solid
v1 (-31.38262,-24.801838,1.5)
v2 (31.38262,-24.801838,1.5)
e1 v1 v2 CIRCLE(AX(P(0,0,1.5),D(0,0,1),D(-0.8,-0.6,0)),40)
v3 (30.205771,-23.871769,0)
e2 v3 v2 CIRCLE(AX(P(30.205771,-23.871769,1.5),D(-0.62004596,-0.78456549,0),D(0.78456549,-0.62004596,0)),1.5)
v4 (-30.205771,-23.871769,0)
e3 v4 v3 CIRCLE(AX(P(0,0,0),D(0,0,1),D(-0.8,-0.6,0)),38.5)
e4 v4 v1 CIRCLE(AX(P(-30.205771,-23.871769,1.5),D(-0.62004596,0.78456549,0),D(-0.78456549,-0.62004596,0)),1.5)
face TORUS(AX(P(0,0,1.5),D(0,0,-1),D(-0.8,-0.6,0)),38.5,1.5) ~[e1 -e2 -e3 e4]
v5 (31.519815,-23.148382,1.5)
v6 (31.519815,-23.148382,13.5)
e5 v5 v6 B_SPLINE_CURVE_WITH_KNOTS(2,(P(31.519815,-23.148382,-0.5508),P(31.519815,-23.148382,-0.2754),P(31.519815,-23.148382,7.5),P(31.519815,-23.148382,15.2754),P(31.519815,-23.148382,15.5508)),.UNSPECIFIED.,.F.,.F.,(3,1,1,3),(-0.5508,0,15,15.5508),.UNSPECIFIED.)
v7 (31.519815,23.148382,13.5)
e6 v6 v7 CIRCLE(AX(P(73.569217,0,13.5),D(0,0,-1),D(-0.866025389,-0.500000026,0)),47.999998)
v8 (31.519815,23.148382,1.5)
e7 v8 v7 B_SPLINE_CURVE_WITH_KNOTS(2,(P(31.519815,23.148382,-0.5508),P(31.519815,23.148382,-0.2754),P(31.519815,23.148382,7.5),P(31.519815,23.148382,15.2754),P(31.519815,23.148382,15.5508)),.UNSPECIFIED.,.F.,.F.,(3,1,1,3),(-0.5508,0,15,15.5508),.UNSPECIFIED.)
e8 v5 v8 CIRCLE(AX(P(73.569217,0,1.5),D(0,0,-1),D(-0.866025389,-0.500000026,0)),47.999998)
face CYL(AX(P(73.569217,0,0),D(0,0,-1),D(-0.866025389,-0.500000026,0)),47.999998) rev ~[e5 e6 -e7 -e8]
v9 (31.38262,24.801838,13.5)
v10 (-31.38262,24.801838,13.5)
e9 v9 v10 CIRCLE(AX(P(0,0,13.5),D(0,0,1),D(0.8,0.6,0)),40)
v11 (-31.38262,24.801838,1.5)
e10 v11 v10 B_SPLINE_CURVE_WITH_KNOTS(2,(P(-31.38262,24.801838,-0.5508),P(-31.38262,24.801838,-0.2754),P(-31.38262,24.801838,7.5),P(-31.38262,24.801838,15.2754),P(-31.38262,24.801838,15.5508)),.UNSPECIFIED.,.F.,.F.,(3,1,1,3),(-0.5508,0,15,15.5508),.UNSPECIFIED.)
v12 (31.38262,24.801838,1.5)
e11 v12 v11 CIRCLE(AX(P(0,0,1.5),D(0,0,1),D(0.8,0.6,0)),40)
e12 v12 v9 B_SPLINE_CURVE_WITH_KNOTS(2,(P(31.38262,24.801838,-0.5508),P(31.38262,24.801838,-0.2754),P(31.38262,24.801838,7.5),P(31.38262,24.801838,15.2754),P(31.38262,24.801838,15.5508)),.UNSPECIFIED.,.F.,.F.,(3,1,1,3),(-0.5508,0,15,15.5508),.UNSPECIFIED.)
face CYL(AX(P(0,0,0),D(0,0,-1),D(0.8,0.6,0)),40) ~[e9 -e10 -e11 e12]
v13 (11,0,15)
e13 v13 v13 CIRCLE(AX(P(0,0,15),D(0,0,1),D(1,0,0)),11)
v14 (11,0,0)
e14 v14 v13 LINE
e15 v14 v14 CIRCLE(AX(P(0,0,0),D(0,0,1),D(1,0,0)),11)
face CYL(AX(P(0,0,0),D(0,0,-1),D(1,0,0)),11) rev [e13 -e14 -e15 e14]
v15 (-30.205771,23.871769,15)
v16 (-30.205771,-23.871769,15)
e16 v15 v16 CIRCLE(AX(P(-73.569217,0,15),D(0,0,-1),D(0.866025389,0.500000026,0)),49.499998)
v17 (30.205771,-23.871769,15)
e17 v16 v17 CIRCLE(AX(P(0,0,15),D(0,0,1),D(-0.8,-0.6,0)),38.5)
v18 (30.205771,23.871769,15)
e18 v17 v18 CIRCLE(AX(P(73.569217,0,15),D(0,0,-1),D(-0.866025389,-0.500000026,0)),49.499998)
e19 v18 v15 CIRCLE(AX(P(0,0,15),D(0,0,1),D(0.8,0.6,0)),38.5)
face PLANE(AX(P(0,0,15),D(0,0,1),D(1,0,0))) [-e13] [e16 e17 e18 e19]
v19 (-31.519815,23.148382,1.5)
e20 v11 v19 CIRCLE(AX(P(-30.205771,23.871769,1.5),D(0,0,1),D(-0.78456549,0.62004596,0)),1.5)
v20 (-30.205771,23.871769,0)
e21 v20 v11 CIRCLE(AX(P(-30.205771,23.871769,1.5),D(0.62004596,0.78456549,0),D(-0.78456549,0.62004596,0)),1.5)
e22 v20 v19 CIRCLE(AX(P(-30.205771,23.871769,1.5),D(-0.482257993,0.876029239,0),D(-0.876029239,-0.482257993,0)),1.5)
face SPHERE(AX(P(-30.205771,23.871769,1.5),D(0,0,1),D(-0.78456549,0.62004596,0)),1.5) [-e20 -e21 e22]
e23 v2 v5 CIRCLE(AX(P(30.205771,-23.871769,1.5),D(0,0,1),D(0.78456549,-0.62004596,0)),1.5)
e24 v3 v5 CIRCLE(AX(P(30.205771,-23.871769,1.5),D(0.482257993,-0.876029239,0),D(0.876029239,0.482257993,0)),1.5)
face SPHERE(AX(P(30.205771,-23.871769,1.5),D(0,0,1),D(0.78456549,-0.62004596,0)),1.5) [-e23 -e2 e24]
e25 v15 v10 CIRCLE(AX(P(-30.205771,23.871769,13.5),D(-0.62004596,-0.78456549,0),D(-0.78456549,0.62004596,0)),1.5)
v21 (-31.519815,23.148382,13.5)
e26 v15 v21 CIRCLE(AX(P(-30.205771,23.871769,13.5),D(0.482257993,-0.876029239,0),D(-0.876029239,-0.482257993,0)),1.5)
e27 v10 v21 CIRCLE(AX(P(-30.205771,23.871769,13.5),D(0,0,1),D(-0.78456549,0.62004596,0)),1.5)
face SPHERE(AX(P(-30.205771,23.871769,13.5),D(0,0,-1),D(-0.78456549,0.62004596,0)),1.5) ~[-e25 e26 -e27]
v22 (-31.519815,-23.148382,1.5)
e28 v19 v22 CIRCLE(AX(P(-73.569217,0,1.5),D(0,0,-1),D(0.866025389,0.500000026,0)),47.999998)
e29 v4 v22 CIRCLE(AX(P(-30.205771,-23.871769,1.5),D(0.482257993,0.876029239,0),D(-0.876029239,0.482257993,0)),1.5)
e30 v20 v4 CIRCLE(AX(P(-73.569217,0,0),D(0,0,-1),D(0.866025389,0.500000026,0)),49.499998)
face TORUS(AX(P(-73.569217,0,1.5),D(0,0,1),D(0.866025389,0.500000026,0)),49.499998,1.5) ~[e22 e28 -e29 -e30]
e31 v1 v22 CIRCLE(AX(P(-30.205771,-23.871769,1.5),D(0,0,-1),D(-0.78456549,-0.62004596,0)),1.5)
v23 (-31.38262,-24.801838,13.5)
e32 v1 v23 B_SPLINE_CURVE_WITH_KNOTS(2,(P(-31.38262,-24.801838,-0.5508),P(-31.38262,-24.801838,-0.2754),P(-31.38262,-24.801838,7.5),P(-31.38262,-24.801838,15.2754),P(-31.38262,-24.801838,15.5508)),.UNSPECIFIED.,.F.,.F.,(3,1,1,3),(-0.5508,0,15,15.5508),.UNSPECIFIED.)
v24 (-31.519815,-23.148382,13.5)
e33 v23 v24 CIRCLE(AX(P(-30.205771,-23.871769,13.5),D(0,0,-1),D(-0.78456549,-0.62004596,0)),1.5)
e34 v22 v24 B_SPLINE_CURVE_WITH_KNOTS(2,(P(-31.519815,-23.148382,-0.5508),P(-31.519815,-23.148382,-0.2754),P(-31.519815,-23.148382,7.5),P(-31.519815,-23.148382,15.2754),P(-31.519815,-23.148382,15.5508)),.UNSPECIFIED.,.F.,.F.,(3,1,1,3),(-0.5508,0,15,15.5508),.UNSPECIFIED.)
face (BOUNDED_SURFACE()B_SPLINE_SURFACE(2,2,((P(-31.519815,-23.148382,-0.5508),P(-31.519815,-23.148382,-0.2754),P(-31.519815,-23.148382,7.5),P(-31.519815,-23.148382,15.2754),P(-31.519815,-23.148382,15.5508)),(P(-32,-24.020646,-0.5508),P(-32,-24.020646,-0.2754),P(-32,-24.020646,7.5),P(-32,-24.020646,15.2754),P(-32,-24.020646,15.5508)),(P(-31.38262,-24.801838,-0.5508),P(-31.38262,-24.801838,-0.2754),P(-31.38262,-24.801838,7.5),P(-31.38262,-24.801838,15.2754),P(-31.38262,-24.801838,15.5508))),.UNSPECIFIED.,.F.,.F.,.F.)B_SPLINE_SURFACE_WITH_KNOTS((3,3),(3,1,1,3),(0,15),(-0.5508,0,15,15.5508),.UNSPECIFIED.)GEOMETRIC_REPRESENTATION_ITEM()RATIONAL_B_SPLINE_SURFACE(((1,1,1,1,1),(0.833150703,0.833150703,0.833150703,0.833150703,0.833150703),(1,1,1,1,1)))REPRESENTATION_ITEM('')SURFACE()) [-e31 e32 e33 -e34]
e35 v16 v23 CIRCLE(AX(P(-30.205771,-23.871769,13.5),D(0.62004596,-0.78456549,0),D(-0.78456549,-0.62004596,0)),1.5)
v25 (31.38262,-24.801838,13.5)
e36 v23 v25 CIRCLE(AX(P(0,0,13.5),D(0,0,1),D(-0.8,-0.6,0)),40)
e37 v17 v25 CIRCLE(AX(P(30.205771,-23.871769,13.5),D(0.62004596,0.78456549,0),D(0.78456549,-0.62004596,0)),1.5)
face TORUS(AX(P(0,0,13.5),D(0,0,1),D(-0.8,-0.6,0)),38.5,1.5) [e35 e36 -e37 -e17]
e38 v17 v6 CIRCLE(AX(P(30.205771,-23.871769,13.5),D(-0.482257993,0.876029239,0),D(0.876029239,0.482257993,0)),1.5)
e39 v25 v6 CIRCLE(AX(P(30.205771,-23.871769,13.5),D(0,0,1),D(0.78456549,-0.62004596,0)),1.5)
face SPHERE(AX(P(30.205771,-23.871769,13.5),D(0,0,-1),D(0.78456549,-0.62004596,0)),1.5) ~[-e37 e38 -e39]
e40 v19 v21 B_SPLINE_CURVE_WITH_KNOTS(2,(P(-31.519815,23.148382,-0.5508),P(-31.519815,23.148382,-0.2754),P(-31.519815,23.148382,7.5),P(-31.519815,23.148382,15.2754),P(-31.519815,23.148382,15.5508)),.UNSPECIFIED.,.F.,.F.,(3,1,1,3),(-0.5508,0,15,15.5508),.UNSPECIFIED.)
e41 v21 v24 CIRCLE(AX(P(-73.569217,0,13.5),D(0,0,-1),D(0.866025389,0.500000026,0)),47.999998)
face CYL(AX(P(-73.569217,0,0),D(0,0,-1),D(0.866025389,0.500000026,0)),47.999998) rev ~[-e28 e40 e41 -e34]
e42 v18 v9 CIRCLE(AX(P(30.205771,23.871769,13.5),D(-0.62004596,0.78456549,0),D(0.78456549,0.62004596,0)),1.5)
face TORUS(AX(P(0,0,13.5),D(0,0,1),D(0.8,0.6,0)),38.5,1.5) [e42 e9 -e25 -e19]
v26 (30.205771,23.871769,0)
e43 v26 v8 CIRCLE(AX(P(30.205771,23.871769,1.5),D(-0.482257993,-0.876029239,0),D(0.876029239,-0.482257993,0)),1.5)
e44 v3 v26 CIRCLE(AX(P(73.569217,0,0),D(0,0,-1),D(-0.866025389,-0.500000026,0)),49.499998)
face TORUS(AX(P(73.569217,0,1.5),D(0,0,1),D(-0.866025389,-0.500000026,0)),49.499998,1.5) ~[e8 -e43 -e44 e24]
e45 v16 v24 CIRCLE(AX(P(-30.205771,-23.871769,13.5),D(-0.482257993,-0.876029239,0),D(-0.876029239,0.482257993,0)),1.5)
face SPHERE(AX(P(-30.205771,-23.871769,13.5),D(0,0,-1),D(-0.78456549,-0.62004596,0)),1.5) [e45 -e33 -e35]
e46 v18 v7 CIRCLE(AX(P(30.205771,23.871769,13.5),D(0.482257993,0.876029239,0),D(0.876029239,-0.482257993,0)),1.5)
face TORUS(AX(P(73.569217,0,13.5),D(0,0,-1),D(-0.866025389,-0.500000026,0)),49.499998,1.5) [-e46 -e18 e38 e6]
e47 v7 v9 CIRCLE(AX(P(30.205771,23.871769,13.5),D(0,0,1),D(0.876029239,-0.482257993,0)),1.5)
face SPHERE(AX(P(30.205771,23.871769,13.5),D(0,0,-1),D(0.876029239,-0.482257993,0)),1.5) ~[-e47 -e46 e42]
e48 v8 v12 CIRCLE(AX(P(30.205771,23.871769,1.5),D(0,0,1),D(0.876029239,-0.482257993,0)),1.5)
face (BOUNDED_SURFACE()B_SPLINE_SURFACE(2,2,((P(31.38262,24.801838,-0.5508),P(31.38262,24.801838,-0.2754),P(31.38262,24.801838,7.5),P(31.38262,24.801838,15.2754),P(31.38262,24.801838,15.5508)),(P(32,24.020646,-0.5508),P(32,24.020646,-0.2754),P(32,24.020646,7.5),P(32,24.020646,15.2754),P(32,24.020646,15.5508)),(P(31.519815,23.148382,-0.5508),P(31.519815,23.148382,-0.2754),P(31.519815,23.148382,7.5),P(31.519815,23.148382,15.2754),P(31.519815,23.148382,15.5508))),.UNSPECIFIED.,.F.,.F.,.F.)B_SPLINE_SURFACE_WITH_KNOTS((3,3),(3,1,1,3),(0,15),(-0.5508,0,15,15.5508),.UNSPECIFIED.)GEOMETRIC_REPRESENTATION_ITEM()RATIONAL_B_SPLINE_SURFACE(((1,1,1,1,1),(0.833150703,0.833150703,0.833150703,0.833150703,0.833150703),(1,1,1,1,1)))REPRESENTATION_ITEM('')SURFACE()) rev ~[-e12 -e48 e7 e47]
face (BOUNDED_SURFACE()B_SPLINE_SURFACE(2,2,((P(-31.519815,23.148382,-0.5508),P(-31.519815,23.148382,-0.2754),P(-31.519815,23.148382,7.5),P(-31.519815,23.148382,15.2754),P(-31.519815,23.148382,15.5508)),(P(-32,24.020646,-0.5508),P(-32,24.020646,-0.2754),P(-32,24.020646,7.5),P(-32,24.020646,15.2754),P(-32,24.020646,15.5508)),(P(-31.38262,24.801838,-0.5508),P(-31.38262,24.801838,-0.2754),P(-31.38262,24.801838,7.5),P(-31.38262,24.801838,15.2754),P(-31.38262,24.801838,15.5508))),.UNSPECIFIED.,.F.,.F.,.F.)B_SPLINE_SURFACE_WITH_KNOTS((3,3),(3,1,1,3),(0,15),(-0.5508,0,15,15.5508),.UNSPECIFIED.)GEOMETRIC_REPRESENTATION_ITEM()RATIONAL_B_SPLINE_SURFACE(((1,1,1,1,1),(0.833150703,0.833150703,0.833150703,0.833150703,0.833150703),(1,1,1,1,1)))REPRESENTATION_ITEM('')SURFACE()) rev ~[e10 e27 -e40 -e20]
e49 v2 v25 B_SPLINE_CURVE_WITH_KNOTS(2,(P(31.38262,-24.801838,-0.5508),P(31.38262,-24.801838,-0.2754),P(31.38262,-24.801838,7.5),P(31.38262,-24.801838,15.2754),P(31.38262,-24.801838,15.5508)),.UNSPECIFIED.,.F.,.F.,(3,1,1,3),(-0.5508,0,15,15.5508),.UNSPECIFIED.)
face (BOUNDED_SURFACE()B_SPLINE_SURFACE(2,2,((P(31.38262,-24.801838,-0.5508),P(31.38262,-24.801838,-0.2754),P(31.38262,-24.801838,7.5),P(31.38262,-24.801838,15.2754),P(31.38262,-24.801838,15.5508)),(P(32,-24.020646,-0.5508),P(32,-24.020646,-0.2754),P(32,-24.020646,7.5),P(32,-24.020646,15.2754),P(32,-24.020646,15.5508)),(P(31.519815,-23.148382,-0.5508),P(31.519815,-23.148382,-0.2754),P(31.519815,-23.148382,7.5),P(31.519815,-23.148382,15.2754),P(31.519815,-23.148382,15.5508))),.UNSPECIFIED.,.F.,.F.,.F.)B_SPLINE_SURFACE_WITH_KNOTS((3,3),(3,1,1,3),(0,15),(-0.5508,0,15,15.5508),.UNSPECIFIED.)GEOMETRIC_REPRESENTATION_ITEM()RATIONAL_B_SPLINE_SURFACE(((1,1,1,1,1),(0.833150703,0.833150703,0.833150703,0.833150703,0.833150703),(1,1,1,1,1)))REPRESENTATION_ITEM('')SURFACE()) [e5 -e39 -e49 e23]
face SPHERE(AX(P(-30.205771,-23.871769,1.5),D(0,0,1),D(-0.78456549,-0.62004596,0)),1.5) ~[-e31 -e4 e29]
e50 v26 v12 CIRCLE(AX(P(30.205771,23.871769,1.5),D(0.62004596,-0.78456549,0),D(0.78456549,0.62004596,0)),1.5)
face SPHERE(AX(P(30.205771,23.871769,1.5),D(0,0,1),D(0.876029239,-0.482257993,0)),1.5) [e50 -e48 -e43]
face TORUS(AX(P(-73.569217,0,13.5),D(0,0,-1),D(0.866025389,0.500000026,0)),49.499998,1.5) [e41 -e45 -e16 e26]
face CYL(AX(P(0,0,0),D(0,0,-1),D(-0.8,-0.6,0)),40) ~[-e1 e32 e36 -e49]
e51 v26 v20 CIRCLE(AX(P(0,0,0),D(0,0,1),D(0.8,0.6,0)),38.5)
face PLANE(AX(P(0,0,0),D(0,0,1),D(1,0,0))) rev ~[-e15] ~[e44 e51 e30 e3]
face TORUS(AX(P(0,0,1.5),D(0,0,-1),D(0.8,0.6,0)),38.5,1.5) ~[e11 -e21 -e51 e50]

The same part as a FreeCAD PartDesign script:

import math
import FreeCAD as App
import Part
import Sketcher

V = App.Vector


def edges_at(feature, points):
    """Names of the edges that pass closest to the given points."""
    edges = feature.Shape.Edges
    near = lambda p: min(range(len(edges)), key=lambda i: edges[i].distToShape(Part.Vertex(*p))[0])
    return sorted({f"Edge{near(p) + 1}" for p in points})

doc = App.newDocument("Part")
body = doc.addObject("PartDesign::Body", "Body")

# Sketch on XY plane
sketch1 = body.newObject("Sketcher::SketchObject", "Sketch")
sketch1.AttachmentSupport = (doc.getObject("XY_Plane"), [""])
sketch1.MapMode = "FlatFace"
sketch1.addGeometry(Part.ArcOfCircle(Part.Circle(V(-74, 0, 0), V(0, 0, 1), 48), math.radians(-30), math.radians(30)), False)
sketch1.addGeometry(Part.ArcOfCircle(Part.Circle(V(0, 0, 0), V(0, 0, 1), 40), math.radians(-143), math.radians(-37)), False)
sketch1.addGeometry(Part.ArcOfCircle(Part.Circle(V(74, 0, 0), V(0, 0, 1), 48), math.radians(150), math.radians(210)), False)
sketch1.addGeometry(Part.ArcOfCircle(Part.Circle(V(0, 0, 0), V(0, 0, 1), 40), math.radians(37), math.radians(143)), False)
sketch1.addGeometry(Part.Circle(V(0, 0, 0), V(0, 0, 1), 11), False)
sketch1.addConstraint(Sketcher.Constraint("Coincident", 0, 1, 1, 1))
sketch1.addConstraint(Sketcher.Constraint("Coincident", 1, 2, 2, 2))
sketch1.addConstraint(Sketcher.Constraint("Coincident", 2, 1, 3, 1))
sketch1.addConstraint(Sketcher.Constraint("Coincident", 3, 2, 0, 2))
sketch1.addConstraint(Sketcher.Constraint("Coincident", 1, 3, -1, 1))
sketch1.addConstraint(Sketcher.Constraint("Coincident", 3, 3, -1, 1))
sketch1.addConstraint(Sketcher.Constraint("Coincident", 4, 3, -1, 1))
sketch1.addConstraint(Sketcher.Constraint("Equal", 0, 2))
sketch1.addConstraint(Sketcher.Constraint("Equal", 1, 3))
sketch1.addConstraint(Sketcher.Constraint("Symmetric", 0, 3, 2, 3, -1, 1))
sketch1.addConstraint(Sketcher.Constraint("PointOnObject", 0, 3, -1))
sketch1.addConstraint(Sketcher.Constraint("Diameter", 4, 22.0))
sketch1.addConstraint(Sketcher.Constraint("Radius", 1, 40.0))
sketch1.addConstraint(Sketcher.Constraint("DistanceX", 0, 1, -1, 1, 32.0))
sketch1.addConstraint(Sketcher.Constraint("Radius", 0, 47.999998))
pad1 = body.newObject("PartDesign::Pad", "Pad")
pad1.Profile = sketch1
pad1.Length = 15
doc.recompute()

fillet = body.newObject("PartDesign::Fillet", "Fillet")
fillet.Base = (pad1, edges_at(pad1, [
    (-32, -24, 7.5),
    (32, -24, 7.5),
    (0, -40, 0),
    (0, -40, 15),
    (32, 24, 7.5),
    (25.569, 0, 0),
    (25.569, 0, 15),
    (-32, 24, 7.5),
    (0, 40, 0),
    (0, 40, 15),
    (-25.569, 0, 0),
    (-25.569, 0, 15),
]))
fillet.Radius = 1.5

doc.recompute()
